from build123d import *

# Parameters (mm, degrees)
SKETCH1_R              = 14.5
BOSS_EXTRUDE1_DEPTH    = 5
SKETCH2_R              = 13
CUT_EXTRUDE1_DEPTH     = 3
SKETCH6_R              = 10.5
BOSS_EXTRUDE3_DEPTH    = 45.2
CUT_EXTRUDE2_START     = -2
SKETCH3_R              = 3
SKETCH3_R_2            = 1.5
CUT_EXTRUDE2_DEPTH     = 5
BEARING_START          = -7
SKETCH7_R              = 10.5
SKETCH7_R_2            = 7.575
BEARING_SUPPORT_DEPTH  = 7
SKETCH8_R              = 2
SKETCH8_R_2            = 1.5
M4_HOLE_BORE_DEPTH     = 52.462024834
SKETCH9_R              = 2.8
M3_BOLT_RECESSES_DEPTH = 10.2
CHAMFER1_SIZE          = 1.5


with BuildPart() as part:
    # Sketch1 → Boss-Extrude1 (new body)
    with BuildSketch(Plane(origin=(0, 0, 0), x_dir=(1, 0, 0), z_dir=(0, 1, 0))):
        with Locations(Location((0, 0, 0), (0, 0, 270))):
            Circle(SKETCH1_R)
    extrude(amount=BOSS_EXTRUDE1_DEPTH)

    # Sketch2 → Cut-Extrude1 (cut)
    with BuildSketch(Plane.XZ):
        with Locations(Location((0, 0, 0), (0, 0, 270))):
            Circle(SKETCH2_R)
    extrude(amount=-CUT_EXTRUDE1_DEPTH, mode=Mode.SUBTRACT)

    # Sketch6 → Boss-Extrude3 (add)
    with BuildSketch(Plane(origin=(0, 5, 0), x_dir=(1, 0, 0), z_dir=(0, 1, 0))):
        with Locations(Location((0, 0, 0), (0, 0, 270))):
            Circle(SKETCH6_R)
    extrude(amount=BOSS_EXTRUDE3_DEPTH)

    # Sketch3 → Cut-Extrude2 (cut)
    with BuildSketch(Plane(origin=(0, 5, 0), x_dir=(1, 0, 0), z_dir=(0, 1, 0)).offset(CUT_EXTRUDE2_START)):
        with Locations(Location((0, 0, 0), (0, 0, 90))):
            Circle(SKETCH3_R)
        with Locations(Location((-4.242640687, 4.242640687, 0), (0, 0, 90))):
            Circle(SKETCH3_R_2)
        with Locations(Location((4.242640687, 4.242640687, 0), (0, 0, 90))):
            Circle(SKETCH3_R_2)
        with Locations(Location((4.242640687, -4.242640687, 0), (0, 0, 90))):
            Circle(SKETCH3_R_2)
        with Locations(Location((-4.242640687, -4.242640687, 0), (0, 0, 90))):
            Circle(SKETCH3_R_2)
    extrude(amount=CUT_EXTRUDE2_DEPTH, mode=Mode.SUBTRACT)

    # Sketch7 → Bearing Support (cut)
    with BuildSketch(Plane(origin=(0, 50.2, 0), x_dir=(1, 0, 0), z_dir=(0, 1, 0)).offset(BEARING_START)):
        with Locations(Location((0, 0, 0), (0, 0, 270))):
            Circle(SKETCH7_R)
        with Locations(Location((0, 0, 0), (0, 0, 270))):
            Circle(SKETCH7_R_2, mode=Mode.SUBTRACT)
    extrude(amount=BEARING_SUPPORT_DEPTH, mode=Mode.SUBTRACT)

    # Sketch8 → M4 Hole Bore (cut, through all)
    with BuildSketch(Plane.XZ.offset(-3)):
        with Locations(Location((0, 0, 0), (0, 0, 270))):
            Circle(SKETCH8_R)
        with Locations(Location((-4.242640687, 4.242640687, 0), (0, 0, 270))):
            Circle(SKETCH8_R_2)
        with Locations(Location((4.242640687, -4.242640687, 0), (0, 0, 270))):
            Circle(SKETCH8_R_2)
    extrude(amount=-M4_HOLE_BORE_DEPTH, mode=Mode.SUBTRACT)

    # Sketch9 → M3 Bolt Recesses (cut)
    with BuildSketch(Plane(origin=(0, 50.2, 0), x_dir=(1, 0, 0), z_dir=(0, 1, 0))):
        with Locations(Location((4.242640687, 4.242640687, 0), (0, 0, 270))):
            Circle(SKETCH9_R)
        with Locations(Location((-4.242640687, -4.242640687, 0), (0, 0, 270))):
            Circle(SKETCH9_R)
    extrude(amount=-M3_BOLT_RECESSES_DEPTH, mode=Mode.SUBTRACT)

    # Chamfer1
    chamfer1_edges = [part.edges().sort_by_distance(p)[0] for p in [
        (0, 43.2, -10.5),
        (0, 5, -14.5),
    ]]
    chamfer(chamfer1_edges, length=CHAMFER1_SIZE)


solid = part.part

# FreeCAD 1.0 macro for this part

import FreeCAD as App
import Part
import Sketcher
from FreeCAD import Vector


def edges_at(feature, points):
    """Names of the edges that pass closest to the given points."""
    edges = feature.Shape.Edges
    near = lambda p: min(range(len(edges)), key=lambda i: edges[i].distToShape(Part.Vertex(*p))[0])
    return sorted({f"Edge{near(p) + 1}" for p in points})

doc = App.newDocument("Part")
body = doc.addObject("PartDesign::Body", "Body")

# Sketch on XZ plane
sketch1 = doc.addObject("Sketcher::SketchObject", "Sketch")
body.addObject(sketch1)
sketch1.AttachmentSupport = (doc.XZ_Plane, [""])
sketch1.MapMode = "FlatFace"
sketch1.addGeometry(Part.Circle(Vector(0, 0, 0), Vector(0, 0, 1), 14), False)
sketch1.addConstraint([
    Sketcher.Constraint("Coincident", 0, 3, -1, 1),
    Sketcher.Constraint("Diameter", 0, 29.0),
])
pad1 = doc.addObject("PartDesign::Pad", "Pad")
body.addObject(pad1)
pad1.Profile = sketch1
pad1.Length = 5
pad1.Reversed = True

# Sketch on XZ plane
sketch2 = doc.addObject("Sketcher::SketchObject", "Sketch001")
body.addObject(sketch2)
sketch2.AttachmentSupport = (doc.XZ_Plane, [""])
sketch2.MapMode = "FlatFace"
sketch2.addGeometry(Part.Circle(Vector(0, 0, 0), Vector(0, 0, 1), 13), False)
sketch2.addConstraint([
    Sketcher.Constraint("Coincident", 0, 3, -1, 1),
    Sketcher.Constraint("Diameter", 0, 26.0),
])
pocket1 = doc.addObject("PartDesign::Pocket", "Pocket")
body.addObject(pocket1)
pocket1.Profile = sketch2
pocket1.Length = 3

# Sketch on XZ plane
sketch3 = doc.addObject("Sketcher::SketchObject", "Sketch002")
body.addObject(sketch3)
sketch3.AttachmentSupport = (doc.XZ_Plane, [""])
sketch3.MapMode = "FlatFace"
sketch3.AttachmentOffset = App.Placement(Vector(0, 0, -5), App.Rotation())
sketch3.addGeometry(Part.Circle(Vector(0, 0, 0), Vector(0, 0, 1), 10), False)
sketch3.addConstraint([
    Sketcher.Constraint("Coincident", 0, 3, -1, 1),
    Sketcher.Constraint("Diameter", 0, 21.0),
])
pad2 = doc.addObject("PartDesign::Pad", "Pad001")
body.addObject(pad2)
pad2.Profile = sketch3
pad2.Length = 45.2
pad2.Reversed = True

# Sketch on XZ plane
sketch4 = doc.addObject("Sketcher::SketchObject", "Sketch003")
body.addObject(sketch4)
sketch4.AttachmentSupport = (doc.XZ_Plane, [""])
sketch4.MapMode = "FlatFace"
sketch4.AttachmentOffset = App.Placement(Vector(0, 0, -3), App.Rotation())
sketch4.addGeometry([
    Part.Circle(Vector(0, 0, 0), Vector(0, 0, 1), 3),  # 0
    Part.Circle(Vector(-4.2, -4.2, 0), Vector(0, 0, 1), 1.5),  # 1
    Part.Circle(Vector(4.2, -4.2, 0), Vector(0, 0, 1), 1.5),  # 2
    Part.Circle(Vector(4.2, 4.2, 0), Vector(0, 0, 1), 1.5),  # 3
    Part.Circle(Vector(-4.2, 4.2, 0), Vector(0, 0, 1), 1.5),  # 4
], False)
sketch4.addConstraint([
    Sketcher.Constraint("Coincident", 0, 3, -1, 1),
    Sketcher.Constraint("Equal", 1, 2),
    Sketcher.Constraint("Equal", 2, 3),
    Sketcher.Constraint("Equal", 3, 4),
    Sketcher.Constraint("Symmetric", 1, 3, 3, 3, -1, 1),
    Sketcher.Constraint("Symmetric", 2, 3, 4, 3, -1, 1),
    Sketcher.Constraint("Symmetric", 1, 3, 2, 3, -2),
    Sketcher.Constraint("Diameter", 0, 6.0),
    Sketcher.Constraint("Diameter", 1, 3.0),
    Sketcher.Constraint("DistanceX", 1, 3, -1, 1, 4.242641),
    Sketcher.Constraint("DistanceY", 1, 3, -1, 1, 4.242641),
])
pocket2 = doc.addObject("PartDesign::Pocket", "Pocket001")
body.addObject(pocket2)
pocket2.Profile = sketch4
pocket2.Length = 5

# Sketch on XZ plane
sketch5 = doc.addObject("Sketcher::SketchObject", "Sketch004")
body.addObject(sketch5)
sketch5.AttachmentSupport = (doc.XZ_Plane, [""])
sketch5.MapMode = "FlatFace"
sketch5.AttachmentOffset = App.Placement(Vector(0, 0, -43.2), App.Rotation())
sketch5.addGeometry([
    Part.Circle(Vector(0, 0, 0), Vector(0, 0, 1), 10),
    Part.Circle(Vector(0, 0, 0), Vector(0, 0, 1), 8),
], False)
sketch5.addConstraint([
    Sketcher.Constraint("Coincident", 0, 3, -1, 1),
    Sketcher.Constraint("Coincident", 1, 3, -1, 1),
    Sketcher.Constraint("Diameter", 0, 21.0),
    Sketcher.Constraint("Diameter", 1, 15.15),
])
pocket3 = doc.addObject("PartDesign::Pocket", "Pocket002")
body.addObject(pocket3)
pocket3.Profile = sketch5
pocket3.Length = 7

# Sketch on XZ plane
sketch6 = doc.addObject("Sketcher::SketchObject", "Sketch005")
body.addObject(sketch6)
sketch6.AttachmentSupport = (doc.XZ_Plane, [""])
sketch6.MapMode = "FlatFace"
sketch6.AttachmentOffset = App.Placement(Vector(0, 0, -3), App.Rotation())
sketch6.addGeometry([
    Part.Circle(Vector(0, 0, 0), Vector(0, 0, 1), 2),
    Part.Circle(Vector(-4.2, 4.2, 0), Vector(0, 0, 1), 1.5),
    Part.Circle(Vector(4.2, -4.2, 0), Vector(0, 0, 1), 1.5),
], False)
sketch6.addConstraint([
    Sketcher.Constraint("Coincident", 0, 3, -1, 1),
    Sketcher.Constraint("Equal", 1, 2),
    Sketcher.Constraint("Symmetric", 1, 3, 2, 3, -1, 1),
    Sketcher.Constraint("Diameter", 0, 4.0),
    Sketcher.Constraint("Diameter", 1, 3.0),
    Sketcher.Constraint("DistanceX", 1, 3, -1, 1, 4.242641),
    Sketcher.Constraint("DistanceY", -1, 1, 1, 3, 4.242641),
])
pocket4 = doc.addObject("PartDesign::Pocket", "Pocket003")
body.addObject(pocket4)
pocket4.Profile = sketch6
pocket4.Type = "ThroughAll"

# Sketch on XZ plane
sketch7 = doc.addObject("Sketcher::SketchObject", "Sketch006")
body.addObject(sketch7)
sketch7.AttachmentSupport = (doc.XZ_Plane, [""])
sketch7.MapMode = "FlatFace"
sketch7.AttachmentOffset = App.Placement(Vector(0, 0, -50.2), App.Rotation())
sketch7.addGeometry([
    Part.Circle(Vector(4.2, -4.2, 0), Vector(0, 0, 1), 2.8),
    Part.Circle(Vector(-4.2, 4.2, 0), Vector(0, 0, 1), 2.8),
], False)
sketch7.addConstraint([
    Sketcher.Constraint("Equal", 0, 1),
    Sketcher.Constraint("Symmetric", 0, 3, 1, 3, -1, 1),
    Sketcher.Constraint("Diameter", 0, 5.6),
    Sketcher.Constraint("DistanceX", -1, 1, 0, 3, 4.242641),
    Sketcher.Constraint("DistanceY", 0, 3, -1, 1, 4.242641),
])
pocket5 = doc.addObject("PartDesign::Pocket", "Pocket004")
body.addObject(pocket5)
pocket5.Profile = sketch7
pocket5.Length = 10.2
pocket5.Reversed = True
doc.recompute()

chamfer = doc.addObject("PartDesign::Chamfer", "Chamfer")
body.addObject(chamfer)
chamfer.Base = (pocket5, edges_at(pocket5, [(0, 43.2, -10.5), (0, 5, -14.5)]))
chamfer.Size = 1.5

doc.recompute()
